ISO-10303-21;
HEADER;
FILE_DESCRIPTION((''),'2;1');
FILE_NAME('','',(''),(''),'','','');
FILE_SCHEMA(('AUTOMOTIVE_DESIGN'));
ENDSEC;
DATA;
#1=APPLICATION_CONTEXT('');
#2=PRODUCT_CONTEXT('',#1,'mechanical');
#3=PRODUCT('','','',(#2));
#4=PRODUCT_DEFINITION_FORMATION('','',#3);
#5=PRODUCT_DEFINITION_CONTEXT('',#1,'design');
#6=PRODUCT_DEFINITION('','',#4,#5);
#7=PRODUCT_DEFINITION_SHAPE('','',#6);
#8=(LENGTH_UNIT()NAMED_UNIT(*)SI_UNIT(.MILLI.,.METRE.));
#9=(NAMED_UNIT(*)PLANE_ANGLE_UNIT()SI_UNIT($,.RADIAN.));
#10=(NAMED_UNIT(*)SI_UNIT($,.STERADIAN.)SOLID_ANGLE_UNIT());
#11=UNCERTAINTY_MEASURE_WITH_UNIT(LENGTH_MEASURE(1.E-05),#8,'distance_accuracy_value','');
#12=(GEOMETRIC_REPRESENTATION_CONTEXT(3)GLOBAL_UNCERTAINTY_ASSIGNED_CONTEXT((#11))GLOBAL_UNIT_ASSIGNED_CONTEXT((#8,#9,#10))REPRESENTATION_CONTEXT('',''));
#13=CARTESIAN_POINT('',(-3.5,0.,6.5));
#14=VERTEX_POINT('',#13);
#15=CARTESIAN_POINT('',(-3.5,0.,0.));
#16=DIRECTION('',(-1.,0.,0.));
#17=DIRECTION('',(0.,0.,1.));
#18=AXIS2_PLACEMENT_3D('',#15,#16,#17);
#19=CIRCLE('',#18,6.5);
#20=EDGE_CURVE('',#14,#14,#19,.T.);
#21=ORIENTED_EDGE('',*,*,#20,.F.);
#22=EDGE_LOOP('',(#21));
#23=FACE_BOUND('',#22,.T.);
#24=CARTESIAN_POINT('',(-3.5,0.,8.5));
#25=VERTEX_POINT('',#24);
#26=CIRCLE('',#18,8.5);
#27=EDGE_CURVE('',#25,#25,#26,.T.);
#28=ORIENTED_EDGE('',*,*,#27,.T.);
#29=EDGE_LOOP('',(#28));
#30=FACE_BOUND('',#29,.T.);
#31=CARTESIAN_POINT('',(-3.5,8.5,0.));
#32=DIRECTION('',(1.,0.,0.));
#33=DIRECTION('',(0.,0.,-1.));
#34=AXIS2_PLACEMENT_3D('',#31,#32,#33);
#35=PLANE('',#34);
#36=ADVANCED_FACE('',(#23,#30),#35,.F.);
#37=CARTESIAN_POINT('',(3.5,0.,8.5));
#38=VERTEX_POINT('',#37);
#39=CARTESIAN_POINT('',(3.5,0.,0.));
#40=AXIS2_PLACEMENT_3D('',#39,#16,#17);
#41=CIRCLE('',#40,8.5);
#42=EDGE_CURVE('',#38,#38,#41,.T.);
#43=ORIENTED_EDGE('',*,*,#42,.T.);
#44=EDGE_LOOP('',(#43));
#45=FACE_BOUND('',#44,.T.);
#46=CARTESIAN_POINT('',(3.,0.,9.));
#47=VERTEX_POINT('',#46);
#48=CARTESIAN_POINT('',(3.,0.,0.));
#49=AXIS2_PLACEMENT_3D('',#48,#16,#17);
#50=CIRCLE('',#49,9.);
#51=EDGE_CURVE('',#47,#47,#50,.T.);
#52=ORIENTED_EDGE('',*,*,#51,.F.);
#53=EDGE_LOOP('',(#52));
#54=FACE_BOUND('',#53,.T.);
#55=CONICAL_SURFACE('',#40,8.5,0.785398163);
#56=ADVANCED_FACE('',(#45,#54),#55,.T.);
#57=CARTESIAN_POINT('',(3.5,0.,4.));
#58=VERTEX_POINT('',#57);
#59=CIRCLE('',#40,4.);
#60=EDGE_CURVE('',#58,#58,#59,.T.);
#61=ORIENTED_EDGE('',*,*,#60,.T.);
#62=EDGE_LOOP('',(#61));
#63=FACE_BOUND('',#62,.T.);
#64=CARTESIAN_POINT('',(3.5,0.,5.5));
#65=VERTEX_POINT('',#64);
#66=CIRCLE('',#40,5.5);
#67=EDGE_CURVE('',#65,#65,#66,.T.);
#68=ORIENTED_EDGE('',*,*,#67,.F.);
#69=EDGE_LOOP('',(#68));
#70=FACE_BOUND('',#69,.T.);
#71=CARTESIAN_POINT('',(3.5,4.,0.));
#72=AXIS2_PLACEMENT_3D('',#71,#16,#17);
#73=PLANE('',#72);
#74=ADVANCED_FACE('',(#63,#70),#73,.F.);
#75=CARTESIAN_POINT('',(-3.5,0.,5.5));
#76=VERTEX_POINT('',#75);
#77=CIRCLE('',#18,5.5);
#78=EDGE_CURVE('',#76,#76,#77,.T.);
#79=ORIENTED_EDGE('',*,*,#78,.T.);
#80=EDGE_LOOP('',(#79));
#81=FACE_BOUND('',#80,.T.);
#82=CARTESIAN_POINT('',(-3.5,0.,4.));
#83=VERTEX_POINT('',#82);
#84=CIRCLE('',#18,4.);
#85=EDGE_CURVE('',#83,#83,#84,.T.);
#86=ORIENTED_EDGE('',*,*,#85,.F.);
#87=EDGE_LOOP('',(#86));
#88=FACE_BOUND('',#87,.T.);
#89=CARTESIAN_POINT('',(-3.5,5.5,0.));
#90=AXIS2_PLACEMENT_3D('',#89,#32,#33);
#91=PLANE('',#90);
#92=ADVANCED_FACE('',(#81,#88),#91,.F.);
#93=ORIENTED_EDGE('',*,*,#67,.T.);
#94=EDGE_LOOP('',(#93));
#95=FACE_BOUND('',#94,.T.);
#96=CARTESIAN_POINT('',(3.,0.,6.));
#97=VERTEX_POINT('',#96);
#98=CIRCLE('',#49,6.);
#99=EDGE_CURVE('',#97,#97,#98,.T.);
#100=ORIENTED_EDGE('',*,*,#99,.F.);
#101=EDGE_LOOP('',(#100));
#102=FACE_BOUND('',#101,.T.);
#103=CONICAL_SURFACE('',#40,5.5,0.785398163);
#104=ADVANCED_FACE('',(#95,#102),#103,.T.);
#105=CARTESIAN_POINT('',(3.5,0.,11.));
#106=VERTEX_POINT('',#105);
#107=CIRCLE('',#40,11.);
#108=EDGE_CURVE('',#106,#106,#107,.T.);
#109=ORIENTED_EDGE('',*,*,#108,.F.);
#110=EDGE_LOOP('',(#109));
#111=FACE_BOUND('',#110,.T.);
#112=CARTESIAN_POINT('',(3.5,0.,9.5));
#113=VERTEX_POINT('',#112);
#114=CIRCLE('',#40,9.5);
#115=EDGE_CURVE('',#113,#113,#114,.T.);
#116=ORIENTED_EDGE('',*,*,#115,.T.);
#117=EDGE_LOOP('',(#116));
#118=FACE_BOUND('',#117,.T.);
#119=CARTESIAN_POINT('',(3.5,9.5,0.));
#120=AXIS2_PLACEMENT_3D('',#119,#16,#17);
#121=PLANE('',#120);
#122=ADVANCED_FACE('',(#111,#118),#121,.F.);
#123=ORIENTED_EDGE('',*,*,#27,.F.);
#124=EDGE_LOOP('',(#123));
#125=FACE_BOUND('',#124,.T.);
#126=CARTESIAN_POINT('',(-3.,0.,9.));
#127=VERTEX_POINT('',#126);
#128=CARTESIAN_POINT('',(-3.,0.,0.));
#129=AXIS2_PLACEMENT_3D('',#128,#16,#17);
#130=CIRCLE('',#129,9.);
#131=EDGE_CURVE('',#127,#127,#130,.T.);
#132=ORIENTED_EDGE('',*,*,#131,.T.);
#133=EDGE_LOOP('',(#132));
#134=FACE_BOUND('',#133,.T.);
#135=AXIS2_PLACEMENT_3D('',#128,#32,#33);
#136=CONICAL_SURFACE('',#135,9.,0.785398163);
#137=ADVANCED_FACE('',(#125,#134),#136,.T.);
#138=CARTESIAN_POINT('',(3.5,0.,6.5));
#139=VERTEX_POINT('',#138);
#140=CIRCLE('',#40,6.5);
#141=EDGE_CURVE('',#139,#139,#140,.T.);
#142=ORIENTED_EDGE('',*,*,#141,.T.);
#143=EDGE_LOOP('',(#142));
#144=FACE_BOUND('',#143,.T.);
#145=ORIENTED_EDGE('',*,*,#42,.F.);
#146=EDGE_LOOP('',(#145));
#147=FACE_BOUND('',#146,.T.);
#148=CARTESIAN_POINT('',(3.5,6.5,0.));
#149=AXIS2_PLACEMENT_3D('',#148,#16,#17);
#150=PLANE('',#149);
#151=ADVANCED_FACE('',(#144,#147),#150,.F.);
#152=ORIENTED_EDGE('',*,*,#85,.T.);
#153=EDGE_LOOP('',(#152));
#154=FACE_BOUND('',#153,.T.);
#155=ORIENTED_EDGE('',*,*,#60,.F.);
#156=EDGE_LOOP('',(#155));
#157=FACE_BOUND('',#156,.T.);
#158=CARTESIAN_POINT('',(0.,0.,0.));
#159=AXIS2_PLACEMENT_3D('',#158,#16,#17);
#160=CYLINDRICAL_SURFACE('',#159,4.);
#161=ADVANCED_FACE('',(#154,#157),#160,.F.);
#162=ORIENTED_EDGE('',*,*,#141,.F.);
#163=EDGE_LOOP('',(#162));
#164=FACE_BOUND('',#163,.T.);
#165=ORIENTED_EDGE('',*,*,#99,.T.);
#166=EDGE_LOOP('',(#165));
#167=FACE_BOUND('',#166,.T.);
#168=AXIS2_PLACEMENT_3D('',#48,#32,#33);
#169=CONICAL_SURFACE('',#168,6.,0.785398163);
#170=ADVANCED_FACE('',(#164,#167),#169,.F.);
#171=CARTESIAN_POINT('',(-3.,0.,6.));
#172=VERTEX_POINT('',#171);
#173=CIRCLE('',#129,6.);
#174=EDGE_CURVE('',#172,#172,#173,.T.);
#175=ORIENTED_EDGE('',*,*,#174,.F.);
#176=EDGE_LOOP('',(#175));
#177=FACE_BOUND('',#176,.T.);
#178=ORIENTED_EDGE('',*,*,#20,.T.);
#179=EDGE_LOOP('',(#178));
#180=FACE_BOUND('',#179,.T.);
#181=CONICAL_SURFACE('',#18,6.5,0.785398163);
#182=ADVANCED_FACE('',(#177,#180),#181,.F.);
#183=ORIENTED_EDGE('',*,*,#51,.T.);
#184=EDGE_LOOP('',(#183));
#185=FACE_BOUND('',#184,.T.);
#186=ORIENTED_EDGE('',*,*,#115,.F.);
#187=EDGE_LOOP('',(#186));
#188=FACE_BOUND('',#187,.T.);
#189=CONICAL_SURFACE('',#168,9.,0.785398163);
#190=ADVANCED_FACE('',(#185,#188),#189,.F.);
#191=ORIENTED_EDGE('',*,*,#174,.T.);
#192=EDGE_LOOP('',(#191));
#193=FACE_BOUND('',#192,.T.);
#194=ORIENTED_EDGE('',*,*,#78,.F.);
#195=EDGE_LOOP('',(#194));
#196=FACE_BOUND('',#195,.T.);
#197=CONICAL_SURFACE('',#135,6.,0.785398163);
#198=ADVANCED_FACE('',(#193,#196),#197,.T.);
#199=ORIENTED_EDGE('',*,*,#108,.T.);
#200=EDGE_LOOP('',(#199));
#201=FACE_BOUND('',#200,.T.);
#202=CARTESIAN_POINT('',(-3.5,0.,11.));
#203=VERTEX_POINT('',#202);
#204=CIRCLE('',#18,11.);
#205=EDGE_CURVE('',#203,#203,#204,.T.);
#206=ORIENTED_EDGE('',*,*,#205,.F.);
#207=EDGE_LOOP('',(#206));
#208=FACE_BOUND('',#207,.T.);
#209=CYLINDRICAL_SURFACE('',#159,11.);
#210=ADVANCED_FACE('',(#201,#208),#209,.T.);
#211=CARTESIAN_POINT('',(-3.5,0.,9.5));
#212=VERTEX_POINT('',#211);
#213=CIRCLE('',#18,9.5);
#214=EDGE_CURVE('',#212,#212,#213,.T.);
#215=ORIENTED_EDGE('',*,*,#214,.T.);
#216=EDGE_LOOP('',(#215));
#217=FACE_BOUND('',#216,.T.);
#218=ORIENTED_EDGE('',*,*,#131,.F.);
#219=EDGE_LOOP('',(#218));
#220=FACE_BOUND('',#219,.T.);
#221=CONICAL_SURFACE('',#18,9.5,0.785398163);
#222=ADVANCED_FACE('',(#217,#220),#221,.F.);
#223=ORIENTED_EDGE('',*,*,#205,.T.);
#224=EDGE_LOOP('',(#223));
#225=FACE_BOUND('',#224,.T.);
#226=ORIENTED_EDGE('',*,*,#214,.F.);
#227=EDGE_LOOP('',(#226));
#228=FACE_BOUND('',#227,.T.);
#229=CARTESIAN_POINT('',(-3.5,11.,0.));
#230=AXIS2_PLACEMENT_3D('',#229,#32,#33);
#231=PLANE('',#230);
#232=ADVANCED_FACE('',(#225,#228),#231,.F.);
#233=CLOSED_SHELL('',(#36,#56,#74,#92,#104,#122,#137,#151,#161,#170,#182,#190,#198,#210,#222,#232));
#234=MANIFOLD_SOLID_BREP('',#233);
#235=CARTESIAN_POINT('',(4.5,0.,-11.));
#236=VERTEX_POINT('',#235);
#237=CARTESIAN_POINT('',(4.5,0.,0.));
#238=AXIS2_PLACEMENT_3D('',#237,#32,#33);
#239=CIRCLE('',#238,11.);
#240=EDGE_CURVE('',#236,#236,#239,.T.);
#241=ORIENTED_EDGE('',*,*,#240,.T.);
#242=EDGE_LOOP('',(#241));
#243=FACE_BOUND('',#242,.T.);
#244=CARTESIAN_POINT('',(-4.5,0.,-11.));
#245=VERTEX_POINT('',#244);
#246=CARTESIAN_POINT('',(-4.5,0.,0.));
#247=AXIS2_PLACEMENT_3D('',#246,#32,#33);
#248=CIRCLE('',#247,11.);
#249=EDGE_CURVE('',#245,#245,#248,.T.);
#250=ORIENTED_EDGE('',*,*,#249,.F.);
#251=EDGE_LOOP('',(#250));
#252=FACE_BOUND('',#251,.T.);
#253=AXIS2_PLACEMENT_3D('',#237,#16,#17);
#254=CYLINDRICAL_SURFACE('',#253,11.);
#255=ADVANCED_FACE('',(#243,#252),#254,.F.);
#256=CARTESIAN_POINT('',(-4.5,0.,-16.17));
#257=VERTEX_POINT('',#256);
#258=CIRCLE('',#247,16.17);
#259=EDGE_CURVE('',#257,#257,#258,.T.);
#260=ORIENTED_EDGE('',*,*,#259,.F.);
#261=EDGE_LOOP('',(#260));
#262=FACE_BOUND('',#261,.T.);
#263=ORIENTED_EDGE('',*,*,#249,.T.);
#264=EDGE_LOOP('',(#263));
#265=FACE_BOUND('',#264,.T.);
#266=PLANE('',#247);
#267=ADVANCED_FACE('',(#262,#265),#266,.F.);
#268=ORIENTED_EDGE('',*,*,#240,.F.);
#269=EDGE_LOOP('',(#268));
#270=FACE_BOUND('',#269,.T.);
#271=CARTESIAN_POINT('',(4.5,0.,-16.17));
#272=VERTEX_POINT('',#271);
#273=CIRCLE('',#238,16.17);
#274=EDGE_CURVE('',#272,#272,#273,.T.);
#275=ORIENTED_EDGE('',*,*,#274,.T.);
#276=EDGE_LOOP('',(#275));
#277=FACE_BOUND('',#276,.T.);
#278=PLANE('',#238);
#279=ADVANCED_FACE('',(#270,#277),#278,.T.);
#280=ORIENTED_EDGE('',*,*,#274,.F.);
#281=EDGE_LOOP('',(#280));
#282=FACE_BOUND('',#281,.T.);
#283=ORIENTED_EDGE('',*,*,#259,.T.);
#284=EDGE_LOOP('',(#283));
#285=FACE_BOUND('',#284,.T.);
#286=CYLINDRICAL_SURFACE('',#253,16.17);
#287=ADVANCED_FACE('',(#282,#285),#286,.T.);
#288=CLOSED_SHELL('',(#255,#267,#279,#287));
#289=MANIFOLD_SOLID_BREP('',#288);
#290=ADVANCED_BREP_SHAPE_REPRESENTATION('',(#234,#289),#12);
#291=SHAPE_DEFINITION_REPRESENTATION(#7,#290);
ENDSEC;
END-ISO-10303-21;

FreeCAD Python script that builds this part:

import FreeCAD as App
import Part
import Sketcher

V = App.Vector
Q = App.Units.Quantity


def add_polygon(sketch, points):
    """Adds a closed chain of lines whose ends are joined by coincident constraints."""
    first, n = sketch.GeometryCount, len(points)
    for a, b in zip(points, points[1:] + points[:1]):
        sketch.addGeometry(Part.LineSegment(App.Vector(*a, 0), App.Vector(*b, 0)), False)
    for i in range(n):
        sketch.addConstraint(Sketcher.Constraint("Coincident", first + i, 2, first + (i + 1) % n, 1))

doc = App.newDocument("Part")
body = doc.addObject("PartDesign::Body", "Body")

sketch1 = body.newObject("Sketcher::SketchObject", "Sketch")
sketch1.AttachmentSupport = (doc.getObject("XY_Plane"), [""])
sketch1.MapMode = "FlatFace"
add_polygon(sketch1, [(-3.5, 4), (3.5, 4), (3.5, 5.5), (3, 6), (3.5, 6.5), (3.5, 8.5), (3, 9), (3.5, 9.5), (3.5, 11), (-3.5, 11), (-3.5, 9.5), (-3, 9), (-3.5, 8.5), (-3.5, 6.5), (-3, 6), (-3.5, 5.5)])
sketch1.addConstraint(Sketcher.Constraint("Horizontal", 0))
sketch1.addConstraint(Sketcher.Constraint("Vertical", 1))
sketch1.addConstraint(Sketcher.Constraint("Vertical", 4))
sketch1.addConstraint(Sketcher.Constraint("Vertical", 7))
sketch1.addConstraint(Sketcher.Constraint("Horizontal", 8))
sketch1.addConstraint(Sketcher.Constraint("Vertical", 9))
sketch1.addConstraint(Sketcher.Constraint("Vertical", 12))
sketch1.addConstraint(Sketcher.Constraint("Vertical", 15))
sketch1.addConstraint(Sketcher.Constraint("Symmetric", 6, 2, 9, 2, -2))
sketch1.addConstraint(Sketcher.Constraint("Symmetric", 5, 2, 10, 2, -2))
sketch1.addConstraint(Sketcher.Constraint("Symmetric", 4, 2, 11, 2, -2))
sketch1.addConstraint(Sketcher.Constraint("Symmetric", 2, 2, 13, 2, -2))
sketch1.addConstraint(Sketcher.Constraint("Symmetric", 1, 2, 14, 2, -2))
sketch1.addConstraint(Sketcher.Constraint("Perpendicular", 2, 3))
sketch1.addConstraint(Sketcher.Constraint("Perpendicular", 3, 5))
sketch1.addConstraint(Sketcher.Constraint("Perpendicular", 5, 6))
sketch1.addConstraint(Sketcher.Constraint("Perpendicular", 6, 10))
sketch1.addConstraint(Sketcher.Constraint("Perpendicular", 11, 13))
sketch1.addConstraint(Sketcher.Constraint("Vertical", 1, 2, 3, 2))
sketch1.addConstraint(Sketcher.Constraint("Vertical", 2, 2, 5, 2))
sketch1.addConstraint(Sketcher.Constraint("Vertical", 4, 2, 6, 2))
sketch1.addConstraint(Sketcher.Constraint("Equal", 1, 7))
sketch1.addConstraint(Sketcher.Constraint("DistanceX", 0, 1, 0, 2, Q("7 mm")))
sketch1.addConstraint(Sketcher.Constraint("DistanceY", 4, 1, 4, 2, Q("2 mm")))
sketch1.addConstraint(Sketcher.Constraint("DistanceY", 1, 1, 1, 2, Q("1.5 mm")))
sketch1.addConstraint(Sketcher.Constraint("DistanceY", -1, 1, 0, 2, Q("4 mm")))
sketch1.addConstraint(Sketcher.Constraint("DistanceX", -1, 1, 2, 2, Q("3 mm")))
revolution = body.newObject("PartDesign::Revolution", "Revolution")
revolution.Profile = sketch1
revolution.ReferenceAxis = (sketch1, ["H_Axis"])
revolution.Angle = 360
body2 = doc.addObject("PartDesign::Body", "Body001")

sketch2 = body2.newObject("Sketcher::SketchObject", "Sketch001")
sketch2.AttachmentSupport = (doc.getObject("YZ_Plane001"), [""])
sketch2.MapMode = "FlatFace"
sketch2.addGeometry(Part.Circle(V(0, 0, 0), V(0, 0, 1), 16), False)
sketch2.addGeometry(Part.Circle(V(0, 0, 0), V(0, 0, 1), 11), False)
sketch2.addConstraint(Sketcher.Constraint("Coincident", 0, 3, -1, 1))
sketch2.addConstraint(Sketcher.Constraint("Coincident", 1, 3, -1, 1))
sketch2.addConstraint(Sketcher.Constraint("Diameter", 1, Q("22 mm")))
sketch2.addConstraint(Sketcher.Constraint("Diameter", 0, Q("32.34 mm")))
pad1 = body2.newObject("PartDesign::Pad", "Pad")
pad1.Profile = sketch2
pad1.Length = 9
pad1.Midplane = True

doc.recompute()
